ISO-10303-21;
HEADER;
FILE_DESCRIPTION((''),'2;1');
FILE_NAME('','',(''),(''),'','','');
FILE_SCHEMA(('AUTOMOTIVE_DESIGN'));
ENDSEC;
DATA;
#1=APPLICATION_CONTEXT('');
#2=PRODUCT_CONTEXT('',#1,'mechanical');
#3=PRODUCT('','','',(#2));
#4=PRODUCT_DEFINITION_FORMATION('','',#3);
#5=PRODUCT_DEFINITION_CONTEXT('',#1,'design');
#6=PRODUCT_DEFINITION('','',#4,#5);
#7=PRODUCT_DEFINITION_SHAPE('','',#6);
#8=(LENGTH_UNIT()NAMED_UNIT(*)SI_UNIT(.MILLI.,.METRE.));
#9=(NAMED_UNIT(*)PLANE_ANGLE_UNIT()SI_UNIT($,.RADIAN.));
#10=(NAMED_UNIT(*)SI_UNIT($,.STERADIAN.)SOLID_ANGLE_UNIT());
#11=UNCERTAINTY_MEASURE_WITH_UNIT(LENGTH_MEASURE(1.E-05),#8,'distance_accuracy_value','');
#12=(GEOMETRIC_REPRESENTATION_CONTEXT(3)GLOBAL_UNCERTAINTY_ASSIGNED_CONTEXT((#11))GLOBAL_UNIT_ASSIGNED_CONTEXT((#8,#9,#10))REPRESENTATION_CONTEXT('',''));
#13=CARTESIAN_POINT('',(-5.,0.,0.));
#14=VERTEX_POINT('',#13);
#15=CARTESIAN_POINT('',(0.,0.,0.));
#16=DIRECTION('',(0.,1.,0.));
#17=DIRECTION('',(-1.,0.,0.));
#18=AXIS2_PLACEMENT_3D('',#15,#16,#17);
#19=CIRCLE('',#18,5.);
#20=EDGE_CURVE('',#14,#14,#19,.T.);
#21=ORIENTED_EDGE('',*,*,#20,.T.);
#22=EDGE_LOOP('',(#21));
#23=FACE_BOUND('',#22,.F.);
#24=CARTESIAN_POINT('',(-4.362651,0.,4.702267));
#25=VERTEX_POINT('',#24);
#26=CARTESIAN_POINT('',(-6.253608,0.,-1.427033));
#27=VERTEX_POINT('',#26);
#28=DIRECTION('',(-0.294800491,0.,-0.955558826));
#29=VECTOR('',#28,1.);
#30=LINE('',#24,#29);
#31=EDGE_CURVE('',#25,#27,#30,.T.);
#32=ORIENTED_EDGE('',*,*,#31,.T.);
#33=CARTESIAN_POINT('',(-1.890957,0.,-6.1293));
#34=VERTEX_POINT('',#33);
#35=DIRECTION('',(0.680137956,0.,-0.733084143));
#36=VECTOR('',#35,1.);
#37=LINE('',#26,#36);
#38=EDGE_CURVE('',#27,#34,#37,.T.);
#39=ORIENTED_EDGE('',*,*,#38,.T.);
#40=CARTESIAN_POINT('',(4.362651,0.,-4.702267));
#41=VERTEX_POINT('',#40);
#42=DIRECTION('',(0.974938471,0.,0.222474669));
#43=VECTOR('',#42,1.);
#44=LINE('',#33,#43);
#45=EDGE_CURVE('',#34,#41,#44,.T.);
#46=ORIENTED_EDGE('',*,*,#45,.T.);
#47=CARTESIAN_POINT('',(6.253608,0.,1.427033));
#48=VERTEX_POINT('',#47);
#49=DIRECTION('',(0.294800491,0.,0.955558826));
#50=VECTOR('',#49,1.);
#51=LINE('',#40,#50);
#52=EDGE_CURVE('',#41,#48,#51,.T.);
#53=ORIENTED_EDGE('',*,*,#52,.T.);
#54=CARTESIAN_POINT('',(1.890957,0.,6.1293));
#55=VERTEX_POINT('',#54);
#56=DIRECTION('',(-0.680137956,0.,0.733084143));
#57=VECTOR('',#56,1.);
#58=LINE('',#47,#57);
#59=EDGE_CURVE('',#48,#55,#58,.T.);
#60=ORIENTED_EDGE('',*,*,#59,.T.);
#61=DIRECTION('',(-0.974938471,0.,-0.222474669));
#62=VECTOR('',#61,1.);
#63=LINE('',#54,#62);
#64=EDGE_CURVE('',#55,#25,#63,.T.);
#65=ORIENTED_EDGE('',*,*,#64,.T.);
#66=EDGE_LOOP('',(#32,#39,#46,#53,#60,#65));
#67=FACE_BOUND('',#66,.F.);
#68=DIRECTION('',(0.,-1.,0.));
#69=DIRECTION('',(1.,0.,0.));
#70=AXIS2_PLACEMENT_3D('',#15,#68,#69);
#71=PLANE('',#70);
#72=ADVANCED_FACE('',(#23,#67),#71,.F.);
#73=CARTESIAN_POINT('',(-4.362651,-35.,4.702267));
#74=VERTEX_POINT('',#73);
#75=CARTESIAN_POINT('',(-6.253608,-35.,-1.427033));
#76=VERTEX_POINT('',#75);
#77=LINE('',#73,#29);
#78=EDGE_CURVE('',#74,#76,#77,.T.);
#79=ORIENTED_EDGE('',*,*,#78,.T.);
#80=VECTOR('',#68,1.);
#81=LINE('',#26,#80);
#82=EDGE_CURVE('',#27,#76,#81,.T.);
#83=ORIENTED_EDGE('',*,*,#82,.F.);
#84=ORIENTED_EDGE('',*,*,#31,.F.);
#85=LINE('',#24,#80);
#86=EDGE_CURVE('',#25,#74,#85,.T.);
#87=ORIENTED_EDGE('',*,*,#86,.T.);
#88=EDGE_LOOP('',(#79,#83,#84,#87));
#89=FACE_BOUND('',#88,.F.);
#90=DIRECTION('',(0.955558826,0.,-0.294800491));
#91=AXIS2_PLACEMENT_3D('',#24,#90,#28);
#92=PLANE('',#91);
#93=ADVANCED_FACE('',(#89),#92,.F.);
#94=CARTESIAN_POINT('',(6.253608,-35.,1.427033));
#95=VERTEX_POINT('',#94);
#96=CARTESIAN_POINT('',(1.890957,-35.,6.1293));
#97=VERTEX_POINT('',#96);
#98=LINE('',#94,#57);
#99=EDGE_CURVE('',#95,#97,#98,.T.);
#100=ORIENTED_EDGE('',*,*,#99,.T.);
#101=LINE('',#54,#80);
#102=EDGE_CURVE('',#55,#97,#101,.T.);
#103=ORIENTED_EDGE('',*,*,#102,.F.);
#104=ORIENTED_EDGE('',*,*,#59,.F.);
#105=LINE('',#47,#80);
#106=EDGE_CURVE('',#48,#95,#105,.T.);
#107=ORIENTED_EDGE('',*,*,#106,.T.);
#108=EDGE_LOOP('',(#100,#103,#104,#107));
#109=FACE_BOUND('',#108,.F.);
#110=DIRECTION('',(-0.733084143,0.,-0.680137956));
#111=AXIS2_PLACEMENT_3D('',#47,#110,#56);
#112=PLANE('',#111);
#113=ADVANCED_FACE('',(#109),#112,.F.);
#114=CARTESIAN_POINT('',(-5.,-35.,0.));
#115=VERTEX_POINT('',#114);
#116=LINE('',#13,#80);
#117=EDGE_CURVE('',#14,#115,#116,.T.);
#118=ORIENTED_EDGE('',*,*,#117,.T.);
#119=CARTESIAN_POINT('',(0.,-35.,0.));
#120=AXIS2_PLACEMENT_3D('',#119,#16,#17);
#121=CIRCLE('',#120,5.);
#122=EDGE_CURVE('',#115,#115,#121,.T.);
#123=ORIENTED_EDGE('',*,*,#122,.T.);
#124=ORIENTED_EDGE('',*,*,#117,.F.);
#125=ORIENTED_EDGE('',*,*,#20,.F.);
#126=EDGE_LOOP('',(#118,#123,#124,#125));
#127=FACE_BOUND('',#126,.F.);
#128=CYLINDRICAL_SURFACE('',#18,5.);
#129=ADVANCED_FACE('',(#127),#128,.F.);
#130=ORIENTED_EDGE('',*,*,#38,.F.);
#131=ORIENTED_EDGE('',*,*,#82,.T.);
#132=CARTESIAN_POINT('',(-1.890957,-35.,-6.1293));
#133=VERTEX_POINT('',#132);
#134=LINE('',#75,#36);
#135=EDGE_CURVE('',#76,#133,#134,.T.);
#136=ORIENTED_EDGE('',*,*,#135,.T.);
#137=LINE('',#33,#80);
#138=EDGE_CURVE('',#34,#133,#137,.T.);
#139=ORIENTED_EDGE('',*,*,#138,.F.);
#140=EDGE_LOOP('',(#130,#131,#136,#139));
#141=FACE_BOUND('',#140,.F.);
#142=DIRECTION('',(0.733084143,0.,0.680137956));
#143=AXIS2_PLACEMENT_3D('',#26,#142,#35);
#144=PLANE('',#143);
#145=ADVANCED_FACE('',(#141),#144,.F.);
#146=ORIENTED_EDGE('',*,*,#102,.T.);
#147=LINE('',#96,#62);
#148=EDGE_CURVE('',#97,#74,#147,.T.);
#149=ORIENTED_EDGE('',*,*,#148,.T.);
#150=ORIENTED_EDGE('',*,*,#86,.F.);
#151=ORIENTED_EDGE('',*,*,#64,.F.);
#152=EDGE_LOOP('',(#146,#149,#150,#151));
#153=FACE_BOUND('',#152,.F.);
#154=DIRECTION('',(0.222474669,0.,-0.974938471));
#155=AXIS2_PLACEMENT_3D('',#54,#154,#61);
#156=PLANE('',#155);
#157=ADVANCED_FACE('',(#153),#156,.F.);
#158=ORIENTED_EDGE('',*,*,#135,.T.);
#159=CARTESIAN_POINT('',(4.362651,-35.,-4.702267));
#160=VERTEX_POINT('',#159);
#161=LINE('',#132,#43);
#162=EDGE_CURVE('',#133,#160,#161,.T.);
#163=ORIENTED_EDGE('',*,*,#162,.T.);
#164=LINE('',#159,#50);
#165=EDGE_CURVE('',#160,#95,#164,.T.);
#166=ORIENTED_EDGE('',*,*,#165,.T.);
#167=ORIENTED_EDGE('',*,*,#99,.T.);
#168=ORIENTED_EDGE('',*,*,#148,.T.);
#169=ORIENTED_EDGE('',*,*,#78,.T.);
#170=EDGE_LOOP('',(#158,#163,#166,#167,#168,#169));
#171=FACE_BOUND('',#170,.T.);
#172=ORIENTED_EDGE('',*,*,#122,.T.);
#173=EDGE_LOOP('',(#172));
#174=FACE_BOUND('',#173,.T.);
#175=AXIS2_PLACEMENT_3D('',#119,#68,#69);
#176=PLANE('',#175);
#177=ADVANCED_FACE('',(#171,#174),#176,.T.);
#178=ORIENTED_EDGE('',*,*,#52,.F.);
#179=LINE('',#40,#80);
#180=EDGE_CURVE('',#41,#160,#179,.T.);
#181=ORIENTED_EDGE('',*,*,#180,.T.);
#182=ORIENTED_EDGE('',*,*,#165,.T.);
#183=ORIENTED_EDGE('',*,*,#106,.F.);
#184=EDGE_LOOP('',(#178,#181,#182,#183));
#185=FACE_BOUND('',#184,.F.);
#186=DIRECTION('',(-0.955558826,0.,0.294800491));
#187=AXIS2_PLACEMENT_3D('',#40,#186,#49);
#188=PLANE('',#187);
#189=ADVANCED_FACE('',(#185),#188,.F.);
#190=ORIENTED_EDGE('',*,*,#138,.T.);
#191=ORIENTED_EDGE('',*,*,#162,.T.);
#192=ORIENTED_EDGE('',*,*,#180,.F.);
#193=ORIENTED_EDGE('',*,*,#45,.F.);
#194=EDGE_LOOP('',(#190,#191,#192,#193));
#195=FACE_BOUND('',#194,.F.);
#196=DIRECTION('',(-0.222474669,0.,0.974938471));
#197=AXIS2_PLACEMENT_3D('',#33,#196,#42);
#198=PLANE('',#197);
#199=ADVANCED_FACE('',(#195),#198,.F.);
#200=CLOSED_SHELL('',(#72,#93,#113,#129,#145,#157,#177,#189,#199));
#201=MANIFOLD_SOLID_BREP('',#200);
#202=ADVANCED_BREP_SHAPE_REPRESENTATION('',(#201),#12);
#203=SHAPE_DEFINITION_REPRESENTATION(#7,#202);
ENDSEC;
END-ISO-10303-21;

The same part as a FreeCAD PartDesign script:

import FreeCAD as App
import Part
import Sketcher

V = App.Vector


def add_polygon(sketch, points):
    """Adds a closed chain of lines whose ends are joined by coincident constraints."""
    first, n = sketch.GeometryCount, len(points)
    for a, b in zip(points, points[1:] + points[:1]):
        sketch.addGeometry(Part.LineSegment(App.Vector(*a, 0), App.Vector(*b, 0)), False)
    for i in range(n):
        sketch.addConstraint(Sketcher.Constraint("Coincident", first + i, 2, first + (i + 1) % n, 1))

doc = App.newDocument("Part")
params = doc.addObject("Spreadsheet::Sheet", "Params")
for row, (alias, value) in enumerate([
    ("pad1_length", "35 mm"),
    ("sketch2_diameter", "10 mm"),
], start=1):
    params.set(f"A{row}", alias)
    params.set(f"B{row}", "=" + value)
    params.setAlias(f"B{row}", alias)

body = doc.addObject("PartDesign::Body", "Body")

# Sketch on XZ plane
sketch1 = body.newObject("Sketcher::SketchObject", "Sketch")
sketch1.AttachmentSupport = (doc.getObject("XZ_Plane"), [""])
sketch1.MapMode = "FlatFace"
add_polygon(sketch1, [(6.253608, 1.427033), (1.890957, 6.1293), (-4.362651, 4.702267), (-6.253608, -1.427033), (-1.890957, -6.1293), (4.362651, -4.702267)])  # lines 0-5
sketch1.addConstraint([
    Sketcher.Constraint("Symmetric", 0, 2, 3, 2, -1, 1),
    Sketcher.Constraint("Symmetric", 1, 2, 4, 2, -1, 1),
    Sketcher.Constraint("Symmetric", 2, 2, 5, 2, -1, 1),
    Sketcher.Constraint("Equal", 0, 1),
    Sketcher.Constraint("Equal", 1, 2),
    Sketcher.Constraint("DistanceY", -1, 1, 0, 2, 6.1293),
    Sketcher.Constraint("DistanceY", 2, 2, 1, 2, 6.1293),
    Sketcher.Constraint("DistanceX", 1, 2, 4, 2, 8.725302),
    Sketcher.Constraint("Distance", 0, 6.414362),
])
pad1 = body.newObject("PartDesign::Pad", "Pad")
pad1.Profile = sketch1
pad1.setExpression("Length", "Params.pad1_length")

# Sketch on XZ plane
sketch2 = body.newObject("Sketcher::SketchObject", "Sketch001")
sketch2.AttachmentSupport = (doc.getObject("XZ_Plane"), [""])
sketch2.MapMode = "FlatFace"
sketch2.addGeometry(Part.Circle(V(0, 0, 0), V(0, 0, 1), 5), False)
sketch2.addConstraint([
    Sketcher.Constraint("Coincident", 0, 3, -1, 1),
    Sketcher.Constraint("Diameter", 0, 10.0),
])
sketch2.setExpression("Constraints[1]", "Params.sketch2_diameter")
pocket1 = body.newObject("PartDesign::Pocket", "Pocket")
pocket1.Profile = sketch2
pocket1.Type = "ThroughAll"
pocket1.Reversed = True

doc.recompute()
